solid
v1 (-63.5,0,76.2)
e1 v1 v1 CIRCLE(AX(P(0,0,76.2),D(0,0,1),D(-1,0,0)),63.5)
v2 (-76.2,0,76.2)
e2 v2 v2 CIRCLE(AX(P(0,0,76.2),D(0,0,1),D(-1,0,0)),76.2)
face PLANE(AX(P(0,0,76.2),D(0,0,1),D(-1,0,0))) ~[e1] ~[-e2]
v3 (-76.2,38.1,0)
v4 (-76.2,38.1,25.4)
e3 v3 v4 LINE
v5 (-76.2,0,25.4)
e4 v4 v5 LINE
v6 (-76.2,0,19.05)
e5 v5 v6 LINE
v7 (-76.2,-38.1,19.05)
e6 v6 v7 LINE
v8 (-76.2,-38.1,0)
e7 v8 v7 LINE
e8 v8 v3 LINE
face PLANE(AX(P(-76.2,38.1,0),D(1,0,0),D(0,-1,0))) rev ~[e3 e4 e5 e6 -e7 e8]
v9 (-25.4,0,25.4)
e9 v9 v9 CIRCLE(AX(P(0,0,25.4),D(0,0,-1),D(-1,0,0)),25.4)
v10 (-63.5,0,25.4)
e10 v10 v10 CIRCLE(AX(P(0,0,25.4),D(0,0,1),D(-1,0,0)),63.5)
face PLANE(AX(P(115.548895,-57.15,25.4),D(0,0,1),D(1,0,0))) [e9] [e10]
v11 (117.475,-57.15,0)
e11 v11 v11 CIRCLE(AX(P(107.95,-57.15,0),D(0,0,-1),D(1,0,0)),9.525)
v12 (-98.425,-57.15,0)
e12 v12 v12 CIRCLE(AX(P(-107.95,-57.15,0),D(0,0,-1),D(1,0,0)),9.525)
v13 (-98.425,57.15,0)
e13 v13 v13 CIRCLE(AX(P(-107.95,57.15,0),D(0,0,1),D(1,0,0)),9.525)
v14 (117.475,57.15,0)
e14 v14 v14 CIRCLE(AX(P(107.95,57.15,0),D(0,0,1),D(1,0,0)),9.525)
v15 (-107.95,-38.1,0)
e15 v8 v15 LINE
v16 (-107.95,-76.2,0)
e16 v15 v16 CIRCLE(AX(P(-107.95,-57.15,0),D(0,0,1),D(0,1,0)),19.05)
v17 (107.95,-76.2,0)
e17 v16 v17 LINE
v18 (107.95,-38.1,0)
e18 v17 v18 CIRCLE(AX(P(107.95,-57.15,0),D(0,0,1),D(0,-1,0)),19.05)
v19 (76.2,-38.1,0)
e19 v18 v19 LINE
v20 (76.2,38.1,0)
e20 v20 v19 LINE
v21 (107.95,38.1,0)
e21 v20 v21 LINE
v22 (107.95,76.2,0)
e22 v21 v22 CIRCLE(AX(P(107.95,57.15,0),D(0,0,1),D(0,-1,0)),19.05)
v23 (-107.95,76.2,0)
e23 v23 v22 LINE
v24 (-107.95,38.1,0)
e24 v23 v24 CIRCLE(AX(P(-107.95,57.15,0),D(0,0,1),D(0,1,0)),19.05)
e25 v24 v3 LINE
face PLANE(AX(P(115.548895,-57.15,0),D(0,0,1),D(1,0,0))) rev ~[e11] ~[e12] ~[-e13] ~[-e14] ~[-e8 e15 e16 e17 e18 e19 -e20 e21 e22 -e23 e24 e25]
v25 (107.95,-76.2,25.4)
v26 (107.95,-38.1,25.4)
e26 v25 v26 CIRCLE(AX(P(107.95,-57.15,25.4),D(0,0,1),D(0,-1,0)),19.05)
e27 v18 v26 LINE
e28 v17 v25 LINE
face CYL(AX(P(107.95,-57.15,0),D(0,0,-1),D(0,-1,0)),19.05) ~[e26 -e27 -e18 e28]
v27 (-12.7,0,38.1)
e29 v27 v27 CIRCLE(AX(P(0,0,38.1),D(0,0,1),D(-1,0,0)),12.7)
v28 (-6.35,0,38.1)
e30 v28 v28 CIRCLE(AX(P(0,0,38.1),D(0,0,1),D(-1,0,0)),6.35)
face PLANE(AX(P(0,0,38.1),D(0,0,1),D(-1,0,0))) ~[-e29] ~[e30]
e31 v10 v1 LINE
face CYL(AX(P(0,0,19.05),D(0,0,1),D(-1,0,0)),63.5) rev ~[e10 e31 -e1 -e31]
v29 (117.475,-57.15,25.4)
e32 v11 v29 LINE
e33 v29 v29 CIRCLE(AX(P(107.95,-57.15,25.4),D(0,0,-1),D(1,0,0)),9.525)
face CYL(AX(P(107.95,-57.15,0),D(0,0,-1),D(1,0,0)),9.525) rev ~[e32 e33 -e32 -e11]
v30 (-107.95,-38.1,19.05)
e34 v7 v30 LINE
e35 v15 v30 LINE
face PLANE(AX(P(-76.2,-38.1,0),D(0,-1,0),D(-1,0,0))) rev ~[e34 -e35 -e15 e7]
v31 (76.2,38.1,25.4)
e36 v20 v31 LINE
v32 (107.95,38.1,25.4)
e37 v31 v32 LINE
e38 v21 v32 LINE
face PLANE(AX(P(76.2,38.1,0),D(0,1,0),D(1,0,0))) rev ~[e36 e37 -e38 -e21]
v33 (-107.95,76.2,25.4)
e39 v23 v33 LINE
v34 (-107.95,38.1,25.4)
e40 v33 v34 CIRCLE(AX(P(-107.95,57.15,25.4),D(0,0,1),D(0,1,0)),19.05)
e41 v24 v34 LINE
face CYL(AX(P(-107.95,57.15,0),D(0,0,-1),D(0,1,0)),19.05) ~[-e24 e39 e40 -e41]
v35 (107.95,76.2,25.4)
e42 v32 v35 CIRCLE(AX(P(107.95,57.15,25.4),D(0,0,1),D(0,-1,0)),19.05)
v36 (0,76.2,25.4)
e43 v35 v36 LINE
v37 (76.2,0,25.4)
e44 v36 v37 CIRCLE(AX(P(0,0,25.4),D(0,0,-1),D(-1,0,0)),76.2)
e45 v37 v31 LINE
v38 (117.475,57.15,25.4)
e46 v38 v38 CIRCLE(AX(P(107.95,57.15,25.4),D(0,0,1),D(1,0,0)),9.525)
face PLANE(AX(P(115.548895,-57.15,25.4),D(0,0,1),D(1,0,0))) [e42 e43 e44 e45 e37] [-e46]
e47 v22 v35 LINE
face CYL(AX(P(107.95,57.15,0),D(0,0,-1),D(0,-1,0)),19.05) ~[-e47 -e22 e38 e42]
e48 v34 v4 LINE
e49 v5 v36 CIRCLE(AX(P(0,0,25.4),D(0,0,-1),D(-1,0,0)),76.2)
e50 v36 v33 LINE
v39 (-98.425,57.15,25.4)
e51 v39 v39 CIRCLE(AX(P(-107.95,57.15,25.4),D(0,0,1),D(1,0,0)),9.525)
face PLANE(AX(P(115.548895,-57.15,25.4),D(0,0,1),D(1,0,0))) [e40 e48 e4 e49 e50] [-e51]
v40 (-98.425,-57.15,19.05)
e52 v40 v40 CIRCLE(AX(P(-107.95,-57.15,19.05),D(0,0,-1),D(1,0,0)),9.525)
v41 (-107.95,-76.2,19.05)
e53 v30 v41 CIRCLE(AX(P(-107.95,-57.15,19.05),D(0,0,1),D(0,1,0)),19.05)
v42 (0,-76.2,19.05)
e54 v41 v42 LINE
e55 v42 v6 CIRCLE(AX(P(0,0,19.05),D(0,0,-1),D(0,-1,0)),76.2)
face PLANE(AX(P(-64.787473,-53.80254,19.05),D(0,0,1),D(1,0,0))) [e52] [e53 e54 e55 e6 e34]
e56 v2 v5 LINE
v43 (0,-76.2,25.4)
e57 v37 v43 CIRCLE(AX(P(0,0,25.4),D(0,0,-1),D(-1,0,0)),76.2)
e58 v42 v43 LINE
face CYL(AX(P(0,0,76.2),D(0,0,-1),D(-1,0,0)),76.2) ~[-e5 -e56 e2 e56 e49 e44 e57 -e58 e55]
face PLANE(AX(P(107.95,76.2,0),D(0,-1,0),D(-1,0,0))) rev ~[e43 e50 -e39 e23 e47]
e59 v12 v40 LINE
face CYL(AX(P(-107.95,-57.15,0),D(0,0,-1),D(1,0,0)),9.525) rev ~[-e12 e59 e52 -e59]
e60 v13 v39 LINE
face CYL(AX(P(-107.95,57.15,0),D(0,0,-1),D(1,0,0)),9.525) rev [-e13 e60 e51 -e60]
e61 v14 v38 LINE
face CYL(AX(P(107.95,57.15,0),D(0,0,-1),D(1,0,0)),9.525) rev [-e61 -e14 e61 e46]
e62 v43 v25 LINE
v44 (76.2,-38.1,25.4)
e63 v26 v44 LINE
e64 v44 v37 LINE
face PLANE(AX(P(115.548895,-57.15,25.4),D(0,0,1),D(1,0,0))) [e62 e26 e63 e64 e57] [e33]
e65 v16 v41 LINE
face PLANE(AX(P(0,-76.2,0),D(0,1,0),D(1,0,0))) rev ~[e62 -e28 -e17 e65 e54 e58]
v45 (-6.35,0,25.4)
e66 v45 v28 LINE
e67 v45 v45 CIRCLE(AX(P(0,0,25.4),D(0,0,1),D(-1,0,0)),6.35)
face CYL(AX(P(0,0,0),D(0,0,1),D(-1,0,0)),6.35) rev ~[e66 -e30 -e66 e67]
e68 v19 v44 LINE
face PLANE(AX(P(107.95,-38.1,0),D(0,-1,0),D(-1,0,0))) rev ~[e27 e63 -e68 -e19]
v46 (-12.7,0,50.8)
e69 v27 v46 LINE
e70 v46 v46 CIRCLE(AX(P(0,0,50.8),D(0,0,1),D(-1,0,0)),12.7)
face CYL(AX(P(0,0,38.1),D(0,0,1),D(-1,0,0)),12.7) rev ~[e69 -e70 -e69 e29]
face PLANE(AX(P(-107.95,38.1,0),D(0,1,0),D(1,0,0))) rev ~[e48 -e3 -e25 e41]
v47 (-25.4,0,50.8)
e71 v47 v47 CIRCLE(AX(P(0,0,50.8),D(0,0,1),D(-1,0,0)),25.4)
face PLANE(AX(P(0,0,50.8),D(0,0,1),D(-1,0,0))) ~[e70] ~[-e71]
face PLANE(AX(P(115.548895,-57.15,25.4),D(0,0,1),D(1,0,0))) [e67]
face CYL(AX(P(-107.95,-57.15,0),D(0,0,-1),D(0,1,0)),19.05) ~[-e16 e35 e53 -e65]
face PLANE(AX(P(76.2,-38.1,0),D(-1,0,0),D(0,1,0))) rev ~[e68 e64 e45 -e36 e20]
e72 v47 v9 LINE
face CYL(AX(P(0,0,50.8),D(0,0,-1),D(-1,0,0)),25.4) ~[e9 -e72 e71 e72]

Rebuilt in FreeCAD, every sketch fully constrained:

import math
import FreeCAD as App
import Part
import Sketcher
Q = App.Units.Quantity

doc = App.newDocument("Part")
body = doc.addObject("PartDesign::Body", "Body")

# Sketch on XZ plane
sketch1 = doc.addObject("Sketcher::SketchObject", "Sketch")
body.addObject(sketch1)
sketch1.AttachmentSupport = (doc.XZ_Plane, [""])
sketch1.MapMode = "FlatFace"
sketch1.addGeometry([
    Part.LineSegment(App.Vector(-76, 0, 0), App.Vector(-6, 0, 0)),  # 0
    Part.LineSegment(App.Vector(-6, 0, 0), App.Vector(-6, 38, 0)),  # 1
    Part.LineSegment(App.Vector(-6, 38, 0), App.Vector(-13, 38, 0)),  # 2
    Part.LineSegment(App.Vector(-13, 38, 0), App.Vector(-13, 51, 0)),  # 3
    Part.LineSegment(App.Vector(-13, 51, 0), App.Vector(-25, 51, 0)),  # 4
    Part.LineSegment(App.Vector(-25, 51, 0), App.Vector(-25, 19, 0)),  # 5
    Part.LineSegment(App.Vector(-25, 19, 0), App.Vector(-64, 19, 0)),  # 6
    Part.LineSegment(App.Vector(-64, 19, 0), App.Vector(-64, 76, 0)),  # 7
    Part.LineSegment(App.Vector(-64, 76, 0), App.Vector(-76, 76, 0)),  # 8
    Part.LineSegment(App.Vector(-76, 76, 0), App.Vector(-76, 0, 0)),  # 9
], False)
sketch1.addConstraint([
    Sketcher.Constraint("Coincident", 0, 2, 1, 1),
    Sketcher.Constraint("Coincident", 1, 2, 2, 1),
    Sketcher.Constraint("Coincident", 2, 2, 3, 1),
    Sketcher.Constraint("Coincident", 3, 2, 4, 1),
    Sketcher.Constraint("Coincident", 4, 2, 5, 1),
    Sketcher.Constraint("Coincident", 5, 2, 6, 1),
    Sketcher.Constraint("Coincident", 6, 2, 7, 1),
    Sketcher.Constraint("Coincident", 7, 2, 8, 1),
    Sketcher.Constraint("Coincident", 8, 2, 9, 1),
    Sketcher.Constraint("Coincident", 9, 2, 0, 1),
    Sketcher.Constraint("Horizontal", 0),
    Sketcher.Constraint("Vertical", 1),
    Sketcher.Constraint("Horizontal", 2),
    Sketcher.Constraint("Vertical", 3),
    Sketcher.Constraint("Horizontal", 4),
    Sketcher.Constraint("Vertical", 5),
    Sketcher.Constraint("Horizontal", 6),
    Sketcher.Constraint("Vertical", 7),
    Sketcher.Constraint("Horizontal", 8),
    Sketcher.Constraint("Vertical", 9),
    Sketcher.Constraint("PointOnObject", 0, 2, -1),
    Sketcher.Constraint("Equal", 4, 8),
    Sketcher.Constraint("Equal", 6, 1),
    Sketcher.Constraint("Equal", 8, 3),
    Sketcher.Constraint("DistanceY", 9, 2, 9, 1, Q("3 in")),
    Sketcher.Constraint("DistanceX", 4, 2, 4, 1, Q("0.5 in")),
    Sketcher.Constraint("DistanceX", 6, 2, 6, 1, Q("1.5 in")),
    Sketcher.Constraint("DistanceX", 4, 2, -1, 1, Q("1 in")),
    Sketcher.Constraint("DistanceX", 0, 1, 0, 2, Q("2.75 in")),
    Sketcher.Constraint("DistanceY", 5, 2, 5, 1, Q("1.25 in")),
])
revolution = doc.addObject("PartDesign::Revolution", "Revolution")
body.addObject(revolution)
revolution.Profile = sketch1
revolution.ReferenceAxis = (sketch1, ["V_Axis"])
revolution.Angle = 360

# Sketch on XY plane
sketch2 = doc.addObject("Sketcher::SketchObject", "Sketch001")
body.addObject(sketch2)
sketch2.AttachmentSupport = (doc.XY_Plane, [""])
sketch2.MapMode = "FlatFace"
sketch2.addGeometry([
    Part.LineSegment(App.Vector(-108, -76, 0), App.Vector(0, -76, 0)),  # 0
    Part.ArcOfCircle(Part.Circle(App.Vector(0, 0, 0), App.Vector(0, 0, 1), 76), math.radians(180), math.radians(270)),  # 1
    Part.LineSegment(App.Vector(-76, 0, 0), App.Vector(-76, -38, 0)),  # 2
    Part.LineSegment(App.Vector(-76, -38, 0), App.Vector(-108, -38, 0)),  # 3
    Part.ArcOfCircle(Part.Circle(App.Vector(-108, -57, 0), App.Vector(0, 0, 1), 19), math.radians(90), math.radians(270)),  # 4
    Part.Circle(App.Vector(-108, -57, 0), App.Vector(0, 0, 1), 10),  # 5
], False)
sketch2.addConstraint([
    Sketcher.Constraint("Tangent", 0, 2, 1, 2),
    Sketcher.Constraint("Tangent", 1, 1, 2, 1),
    Sketcher.Constraint("Coincident", 2, 2, 3, 1),
    Sketcher.Constraint("Tangent", 3, 2, 4, 1),
    Sketcher.Constraint("Tangent", 4, 2, 0, 1),
    Sketcher.Constraint("Horizontal", 0),
    Sketcher.Constraint("Vertical", 2),
    Sketcher.Constraint("Horizontal", 3),
    Sketcher.Constraint("Coincident", 1, 3, -1, 1),
    Sketcher.Constraint("Coincident", 5, 3, 4, 3),
    Sketcher.Constraint("Radius", 1, Q("3 in")),
    Sketcher.Constraint("Diameter", 5, Q("0.75 in")),
    Sketcher.Constraint("Radius", 4, Q("0.75 in")),
    Sketcher.Constraint("DistanceX", 0, 1, 0, 2, Q("4.25 in")),
])
pad1 = doc.addObject("PartDesign::Pad", "Pad")
body.addObject(pad1)
pad1.Profile = sketch2
pad1.Length = Q("0.75 in")

# Sketch on XY plane
sketch3 = doc.addObject("Sketcher::SketchObject", "Sketch002")
body.addObject(sketch3)
sketch3.AttachmentSupport = (doc.XY_Plane, [""])
sketch3.MapMode = "FlatFace"
sketch3.addGeometry([
    Part.ArcOfCircle(Part.Circle(App.Vector(108, -57, 0), App.Vector(0, 0, 1), 19), math.radians(-90), math.radians(90)),  # 0
    Part.LineSegment(App.Vector(108, -38, 0), App.Vector(76, -38, 0)),  # 1
    Part.LineSegment(App.Vector(76, -38, 0), App.Vector(76, 38, 0)),  # 2
    Part.LineSegment(App.Vector(76, 38, 0), App.Vector(108, 38, 0)),  # 3
    Part.ArcOfCircle(Part.Circle(App.Vector(108, 57, 0), App.Vector(0, 0, 1), 19), math.radians(-90), math.radians(90)),  # 4
    Part.LineSegment(App.Vector(108, 76, 0), App.Vector(-108, 76, 0)),  # 5
    Part.ArcOfCircle(Part.Circle(App.Vector(-108, 57, 0), App.Vector(0, 0, 1), 19), math.radians(90), math.radians(270)),  # 6
    Part.LineSegment(App.Vector(-108, 38, 0), App.Vector(-76, 38, 0)),  # 7
    Part.LineSegment(App.Vector(-76, 38, 0), App.Vector(-76, 0, 0)),  # 8
    Part.ArcOfCircle(Part.Circle(App.Vector(0, 0, 0), App.Vector(0, 0, 1), 76), math.radians(180), math.radians(270)),  # 9
    Part.LineSegment(App.Vector(0, -76, 0), App.Vector(108, -76, 0)),  # 10
    Part.Circle(App.Vector(108, -57, 0), App.Vector(0, 0, 1), 10),  # 11
    Part.Circle(App.Vector(-108, 57, 0), App.Vector(0, 0, 1), 10),  # 12
    Part.Circle(App.Vector(108, 57, 0), App.Vector(0, 0, 1), 10),  # 13
], False)
sketch3.addConstraint([
    Sketcher.Constraint("Tangent", 0, 2, 1, 1),
    Sketcher.Constraint("Coincident", 1, 2, 2, 1),
    Sketcher.Constraint("Coincident", 2, 2, 3, 1),
    Sketcher.Constraint("Tangent", 3, 2, 4, 1),
    Sketcher.Constraint("Tangent", 4, 2, 5, 1),
    Sketcher.Constraint("Tangent", 5, 2, 6, 1),
    Sketcher.Constraint("Tangent", 6, 2, 7, 1),
    Sketcher.Constraint("Coincident", 7, 2, 8, 1),
    Sketcher.Constraint("Tangent", 8, 2, 9, 1),
    Sketcher.Constraint("Tangent", 9, 2, 10, 1),
    Sketcher.Constraint("Tangent", 10, 2, 0, 1),
    Sketcher.Constraint("Horizontal", 1),
    Sketcher.Constraint("Vertical", 2),
    Sketcher.Constraint("Horizontal", 3),
    Sketcher.Constraint("Horizontal", 5),
    Sketcher.Constraint("Horizontal", 7),
    Sketcher.Constraint("Vertical", 8),
    Sketcher.Constraint("Horizontal", 10),
    Sketcher.Constraint("Coincident", 9, 3, -1, 1),
    Sketcher.Constraint("Coincident", 11, 3, 0, 3),
    Sketcher.Constraint("Coincident", 12, 3, 6, 3),
    Sketcher.Constraint("Coincident", 13, 3, 4, 3),
    Sketcher.Constraint("Equal", 0, 4),
    Sketcher.Constraint("Equal", 4, 6),
    Sketcher.Constraint("Equal", 11, 12),
    Sketcher.Constraint("Equal", 12, 13),
    Sketcher.Constraint("Symmetric", 0, 3, 6, 3, -1, 1),
    Sketcher.Constraint("Vertical", 0, 3, 4, 3),
    Sketcher.Constraint("Equal", 3, 7),
    Sketcher.Constraint("Radius", 9, Q("3 in")),
    Sketcher.Constraint("Diameter", 11, Q("0.75 in")),
    Sketcher.Constraint("DistanceY", 2, 1, 2, 2, Q("3 in")),
    Sketcher.Constraint("DistanceX", 5, 2, 5, 1, Q("8.5 in")),
])
pad2 = doc.addObject("PartDesign::Pad", "Pad001")
body.addObject(pad2)
pad2.Profile = sketch3
pad2.Length = Q("1 in")

doc.recompute()
